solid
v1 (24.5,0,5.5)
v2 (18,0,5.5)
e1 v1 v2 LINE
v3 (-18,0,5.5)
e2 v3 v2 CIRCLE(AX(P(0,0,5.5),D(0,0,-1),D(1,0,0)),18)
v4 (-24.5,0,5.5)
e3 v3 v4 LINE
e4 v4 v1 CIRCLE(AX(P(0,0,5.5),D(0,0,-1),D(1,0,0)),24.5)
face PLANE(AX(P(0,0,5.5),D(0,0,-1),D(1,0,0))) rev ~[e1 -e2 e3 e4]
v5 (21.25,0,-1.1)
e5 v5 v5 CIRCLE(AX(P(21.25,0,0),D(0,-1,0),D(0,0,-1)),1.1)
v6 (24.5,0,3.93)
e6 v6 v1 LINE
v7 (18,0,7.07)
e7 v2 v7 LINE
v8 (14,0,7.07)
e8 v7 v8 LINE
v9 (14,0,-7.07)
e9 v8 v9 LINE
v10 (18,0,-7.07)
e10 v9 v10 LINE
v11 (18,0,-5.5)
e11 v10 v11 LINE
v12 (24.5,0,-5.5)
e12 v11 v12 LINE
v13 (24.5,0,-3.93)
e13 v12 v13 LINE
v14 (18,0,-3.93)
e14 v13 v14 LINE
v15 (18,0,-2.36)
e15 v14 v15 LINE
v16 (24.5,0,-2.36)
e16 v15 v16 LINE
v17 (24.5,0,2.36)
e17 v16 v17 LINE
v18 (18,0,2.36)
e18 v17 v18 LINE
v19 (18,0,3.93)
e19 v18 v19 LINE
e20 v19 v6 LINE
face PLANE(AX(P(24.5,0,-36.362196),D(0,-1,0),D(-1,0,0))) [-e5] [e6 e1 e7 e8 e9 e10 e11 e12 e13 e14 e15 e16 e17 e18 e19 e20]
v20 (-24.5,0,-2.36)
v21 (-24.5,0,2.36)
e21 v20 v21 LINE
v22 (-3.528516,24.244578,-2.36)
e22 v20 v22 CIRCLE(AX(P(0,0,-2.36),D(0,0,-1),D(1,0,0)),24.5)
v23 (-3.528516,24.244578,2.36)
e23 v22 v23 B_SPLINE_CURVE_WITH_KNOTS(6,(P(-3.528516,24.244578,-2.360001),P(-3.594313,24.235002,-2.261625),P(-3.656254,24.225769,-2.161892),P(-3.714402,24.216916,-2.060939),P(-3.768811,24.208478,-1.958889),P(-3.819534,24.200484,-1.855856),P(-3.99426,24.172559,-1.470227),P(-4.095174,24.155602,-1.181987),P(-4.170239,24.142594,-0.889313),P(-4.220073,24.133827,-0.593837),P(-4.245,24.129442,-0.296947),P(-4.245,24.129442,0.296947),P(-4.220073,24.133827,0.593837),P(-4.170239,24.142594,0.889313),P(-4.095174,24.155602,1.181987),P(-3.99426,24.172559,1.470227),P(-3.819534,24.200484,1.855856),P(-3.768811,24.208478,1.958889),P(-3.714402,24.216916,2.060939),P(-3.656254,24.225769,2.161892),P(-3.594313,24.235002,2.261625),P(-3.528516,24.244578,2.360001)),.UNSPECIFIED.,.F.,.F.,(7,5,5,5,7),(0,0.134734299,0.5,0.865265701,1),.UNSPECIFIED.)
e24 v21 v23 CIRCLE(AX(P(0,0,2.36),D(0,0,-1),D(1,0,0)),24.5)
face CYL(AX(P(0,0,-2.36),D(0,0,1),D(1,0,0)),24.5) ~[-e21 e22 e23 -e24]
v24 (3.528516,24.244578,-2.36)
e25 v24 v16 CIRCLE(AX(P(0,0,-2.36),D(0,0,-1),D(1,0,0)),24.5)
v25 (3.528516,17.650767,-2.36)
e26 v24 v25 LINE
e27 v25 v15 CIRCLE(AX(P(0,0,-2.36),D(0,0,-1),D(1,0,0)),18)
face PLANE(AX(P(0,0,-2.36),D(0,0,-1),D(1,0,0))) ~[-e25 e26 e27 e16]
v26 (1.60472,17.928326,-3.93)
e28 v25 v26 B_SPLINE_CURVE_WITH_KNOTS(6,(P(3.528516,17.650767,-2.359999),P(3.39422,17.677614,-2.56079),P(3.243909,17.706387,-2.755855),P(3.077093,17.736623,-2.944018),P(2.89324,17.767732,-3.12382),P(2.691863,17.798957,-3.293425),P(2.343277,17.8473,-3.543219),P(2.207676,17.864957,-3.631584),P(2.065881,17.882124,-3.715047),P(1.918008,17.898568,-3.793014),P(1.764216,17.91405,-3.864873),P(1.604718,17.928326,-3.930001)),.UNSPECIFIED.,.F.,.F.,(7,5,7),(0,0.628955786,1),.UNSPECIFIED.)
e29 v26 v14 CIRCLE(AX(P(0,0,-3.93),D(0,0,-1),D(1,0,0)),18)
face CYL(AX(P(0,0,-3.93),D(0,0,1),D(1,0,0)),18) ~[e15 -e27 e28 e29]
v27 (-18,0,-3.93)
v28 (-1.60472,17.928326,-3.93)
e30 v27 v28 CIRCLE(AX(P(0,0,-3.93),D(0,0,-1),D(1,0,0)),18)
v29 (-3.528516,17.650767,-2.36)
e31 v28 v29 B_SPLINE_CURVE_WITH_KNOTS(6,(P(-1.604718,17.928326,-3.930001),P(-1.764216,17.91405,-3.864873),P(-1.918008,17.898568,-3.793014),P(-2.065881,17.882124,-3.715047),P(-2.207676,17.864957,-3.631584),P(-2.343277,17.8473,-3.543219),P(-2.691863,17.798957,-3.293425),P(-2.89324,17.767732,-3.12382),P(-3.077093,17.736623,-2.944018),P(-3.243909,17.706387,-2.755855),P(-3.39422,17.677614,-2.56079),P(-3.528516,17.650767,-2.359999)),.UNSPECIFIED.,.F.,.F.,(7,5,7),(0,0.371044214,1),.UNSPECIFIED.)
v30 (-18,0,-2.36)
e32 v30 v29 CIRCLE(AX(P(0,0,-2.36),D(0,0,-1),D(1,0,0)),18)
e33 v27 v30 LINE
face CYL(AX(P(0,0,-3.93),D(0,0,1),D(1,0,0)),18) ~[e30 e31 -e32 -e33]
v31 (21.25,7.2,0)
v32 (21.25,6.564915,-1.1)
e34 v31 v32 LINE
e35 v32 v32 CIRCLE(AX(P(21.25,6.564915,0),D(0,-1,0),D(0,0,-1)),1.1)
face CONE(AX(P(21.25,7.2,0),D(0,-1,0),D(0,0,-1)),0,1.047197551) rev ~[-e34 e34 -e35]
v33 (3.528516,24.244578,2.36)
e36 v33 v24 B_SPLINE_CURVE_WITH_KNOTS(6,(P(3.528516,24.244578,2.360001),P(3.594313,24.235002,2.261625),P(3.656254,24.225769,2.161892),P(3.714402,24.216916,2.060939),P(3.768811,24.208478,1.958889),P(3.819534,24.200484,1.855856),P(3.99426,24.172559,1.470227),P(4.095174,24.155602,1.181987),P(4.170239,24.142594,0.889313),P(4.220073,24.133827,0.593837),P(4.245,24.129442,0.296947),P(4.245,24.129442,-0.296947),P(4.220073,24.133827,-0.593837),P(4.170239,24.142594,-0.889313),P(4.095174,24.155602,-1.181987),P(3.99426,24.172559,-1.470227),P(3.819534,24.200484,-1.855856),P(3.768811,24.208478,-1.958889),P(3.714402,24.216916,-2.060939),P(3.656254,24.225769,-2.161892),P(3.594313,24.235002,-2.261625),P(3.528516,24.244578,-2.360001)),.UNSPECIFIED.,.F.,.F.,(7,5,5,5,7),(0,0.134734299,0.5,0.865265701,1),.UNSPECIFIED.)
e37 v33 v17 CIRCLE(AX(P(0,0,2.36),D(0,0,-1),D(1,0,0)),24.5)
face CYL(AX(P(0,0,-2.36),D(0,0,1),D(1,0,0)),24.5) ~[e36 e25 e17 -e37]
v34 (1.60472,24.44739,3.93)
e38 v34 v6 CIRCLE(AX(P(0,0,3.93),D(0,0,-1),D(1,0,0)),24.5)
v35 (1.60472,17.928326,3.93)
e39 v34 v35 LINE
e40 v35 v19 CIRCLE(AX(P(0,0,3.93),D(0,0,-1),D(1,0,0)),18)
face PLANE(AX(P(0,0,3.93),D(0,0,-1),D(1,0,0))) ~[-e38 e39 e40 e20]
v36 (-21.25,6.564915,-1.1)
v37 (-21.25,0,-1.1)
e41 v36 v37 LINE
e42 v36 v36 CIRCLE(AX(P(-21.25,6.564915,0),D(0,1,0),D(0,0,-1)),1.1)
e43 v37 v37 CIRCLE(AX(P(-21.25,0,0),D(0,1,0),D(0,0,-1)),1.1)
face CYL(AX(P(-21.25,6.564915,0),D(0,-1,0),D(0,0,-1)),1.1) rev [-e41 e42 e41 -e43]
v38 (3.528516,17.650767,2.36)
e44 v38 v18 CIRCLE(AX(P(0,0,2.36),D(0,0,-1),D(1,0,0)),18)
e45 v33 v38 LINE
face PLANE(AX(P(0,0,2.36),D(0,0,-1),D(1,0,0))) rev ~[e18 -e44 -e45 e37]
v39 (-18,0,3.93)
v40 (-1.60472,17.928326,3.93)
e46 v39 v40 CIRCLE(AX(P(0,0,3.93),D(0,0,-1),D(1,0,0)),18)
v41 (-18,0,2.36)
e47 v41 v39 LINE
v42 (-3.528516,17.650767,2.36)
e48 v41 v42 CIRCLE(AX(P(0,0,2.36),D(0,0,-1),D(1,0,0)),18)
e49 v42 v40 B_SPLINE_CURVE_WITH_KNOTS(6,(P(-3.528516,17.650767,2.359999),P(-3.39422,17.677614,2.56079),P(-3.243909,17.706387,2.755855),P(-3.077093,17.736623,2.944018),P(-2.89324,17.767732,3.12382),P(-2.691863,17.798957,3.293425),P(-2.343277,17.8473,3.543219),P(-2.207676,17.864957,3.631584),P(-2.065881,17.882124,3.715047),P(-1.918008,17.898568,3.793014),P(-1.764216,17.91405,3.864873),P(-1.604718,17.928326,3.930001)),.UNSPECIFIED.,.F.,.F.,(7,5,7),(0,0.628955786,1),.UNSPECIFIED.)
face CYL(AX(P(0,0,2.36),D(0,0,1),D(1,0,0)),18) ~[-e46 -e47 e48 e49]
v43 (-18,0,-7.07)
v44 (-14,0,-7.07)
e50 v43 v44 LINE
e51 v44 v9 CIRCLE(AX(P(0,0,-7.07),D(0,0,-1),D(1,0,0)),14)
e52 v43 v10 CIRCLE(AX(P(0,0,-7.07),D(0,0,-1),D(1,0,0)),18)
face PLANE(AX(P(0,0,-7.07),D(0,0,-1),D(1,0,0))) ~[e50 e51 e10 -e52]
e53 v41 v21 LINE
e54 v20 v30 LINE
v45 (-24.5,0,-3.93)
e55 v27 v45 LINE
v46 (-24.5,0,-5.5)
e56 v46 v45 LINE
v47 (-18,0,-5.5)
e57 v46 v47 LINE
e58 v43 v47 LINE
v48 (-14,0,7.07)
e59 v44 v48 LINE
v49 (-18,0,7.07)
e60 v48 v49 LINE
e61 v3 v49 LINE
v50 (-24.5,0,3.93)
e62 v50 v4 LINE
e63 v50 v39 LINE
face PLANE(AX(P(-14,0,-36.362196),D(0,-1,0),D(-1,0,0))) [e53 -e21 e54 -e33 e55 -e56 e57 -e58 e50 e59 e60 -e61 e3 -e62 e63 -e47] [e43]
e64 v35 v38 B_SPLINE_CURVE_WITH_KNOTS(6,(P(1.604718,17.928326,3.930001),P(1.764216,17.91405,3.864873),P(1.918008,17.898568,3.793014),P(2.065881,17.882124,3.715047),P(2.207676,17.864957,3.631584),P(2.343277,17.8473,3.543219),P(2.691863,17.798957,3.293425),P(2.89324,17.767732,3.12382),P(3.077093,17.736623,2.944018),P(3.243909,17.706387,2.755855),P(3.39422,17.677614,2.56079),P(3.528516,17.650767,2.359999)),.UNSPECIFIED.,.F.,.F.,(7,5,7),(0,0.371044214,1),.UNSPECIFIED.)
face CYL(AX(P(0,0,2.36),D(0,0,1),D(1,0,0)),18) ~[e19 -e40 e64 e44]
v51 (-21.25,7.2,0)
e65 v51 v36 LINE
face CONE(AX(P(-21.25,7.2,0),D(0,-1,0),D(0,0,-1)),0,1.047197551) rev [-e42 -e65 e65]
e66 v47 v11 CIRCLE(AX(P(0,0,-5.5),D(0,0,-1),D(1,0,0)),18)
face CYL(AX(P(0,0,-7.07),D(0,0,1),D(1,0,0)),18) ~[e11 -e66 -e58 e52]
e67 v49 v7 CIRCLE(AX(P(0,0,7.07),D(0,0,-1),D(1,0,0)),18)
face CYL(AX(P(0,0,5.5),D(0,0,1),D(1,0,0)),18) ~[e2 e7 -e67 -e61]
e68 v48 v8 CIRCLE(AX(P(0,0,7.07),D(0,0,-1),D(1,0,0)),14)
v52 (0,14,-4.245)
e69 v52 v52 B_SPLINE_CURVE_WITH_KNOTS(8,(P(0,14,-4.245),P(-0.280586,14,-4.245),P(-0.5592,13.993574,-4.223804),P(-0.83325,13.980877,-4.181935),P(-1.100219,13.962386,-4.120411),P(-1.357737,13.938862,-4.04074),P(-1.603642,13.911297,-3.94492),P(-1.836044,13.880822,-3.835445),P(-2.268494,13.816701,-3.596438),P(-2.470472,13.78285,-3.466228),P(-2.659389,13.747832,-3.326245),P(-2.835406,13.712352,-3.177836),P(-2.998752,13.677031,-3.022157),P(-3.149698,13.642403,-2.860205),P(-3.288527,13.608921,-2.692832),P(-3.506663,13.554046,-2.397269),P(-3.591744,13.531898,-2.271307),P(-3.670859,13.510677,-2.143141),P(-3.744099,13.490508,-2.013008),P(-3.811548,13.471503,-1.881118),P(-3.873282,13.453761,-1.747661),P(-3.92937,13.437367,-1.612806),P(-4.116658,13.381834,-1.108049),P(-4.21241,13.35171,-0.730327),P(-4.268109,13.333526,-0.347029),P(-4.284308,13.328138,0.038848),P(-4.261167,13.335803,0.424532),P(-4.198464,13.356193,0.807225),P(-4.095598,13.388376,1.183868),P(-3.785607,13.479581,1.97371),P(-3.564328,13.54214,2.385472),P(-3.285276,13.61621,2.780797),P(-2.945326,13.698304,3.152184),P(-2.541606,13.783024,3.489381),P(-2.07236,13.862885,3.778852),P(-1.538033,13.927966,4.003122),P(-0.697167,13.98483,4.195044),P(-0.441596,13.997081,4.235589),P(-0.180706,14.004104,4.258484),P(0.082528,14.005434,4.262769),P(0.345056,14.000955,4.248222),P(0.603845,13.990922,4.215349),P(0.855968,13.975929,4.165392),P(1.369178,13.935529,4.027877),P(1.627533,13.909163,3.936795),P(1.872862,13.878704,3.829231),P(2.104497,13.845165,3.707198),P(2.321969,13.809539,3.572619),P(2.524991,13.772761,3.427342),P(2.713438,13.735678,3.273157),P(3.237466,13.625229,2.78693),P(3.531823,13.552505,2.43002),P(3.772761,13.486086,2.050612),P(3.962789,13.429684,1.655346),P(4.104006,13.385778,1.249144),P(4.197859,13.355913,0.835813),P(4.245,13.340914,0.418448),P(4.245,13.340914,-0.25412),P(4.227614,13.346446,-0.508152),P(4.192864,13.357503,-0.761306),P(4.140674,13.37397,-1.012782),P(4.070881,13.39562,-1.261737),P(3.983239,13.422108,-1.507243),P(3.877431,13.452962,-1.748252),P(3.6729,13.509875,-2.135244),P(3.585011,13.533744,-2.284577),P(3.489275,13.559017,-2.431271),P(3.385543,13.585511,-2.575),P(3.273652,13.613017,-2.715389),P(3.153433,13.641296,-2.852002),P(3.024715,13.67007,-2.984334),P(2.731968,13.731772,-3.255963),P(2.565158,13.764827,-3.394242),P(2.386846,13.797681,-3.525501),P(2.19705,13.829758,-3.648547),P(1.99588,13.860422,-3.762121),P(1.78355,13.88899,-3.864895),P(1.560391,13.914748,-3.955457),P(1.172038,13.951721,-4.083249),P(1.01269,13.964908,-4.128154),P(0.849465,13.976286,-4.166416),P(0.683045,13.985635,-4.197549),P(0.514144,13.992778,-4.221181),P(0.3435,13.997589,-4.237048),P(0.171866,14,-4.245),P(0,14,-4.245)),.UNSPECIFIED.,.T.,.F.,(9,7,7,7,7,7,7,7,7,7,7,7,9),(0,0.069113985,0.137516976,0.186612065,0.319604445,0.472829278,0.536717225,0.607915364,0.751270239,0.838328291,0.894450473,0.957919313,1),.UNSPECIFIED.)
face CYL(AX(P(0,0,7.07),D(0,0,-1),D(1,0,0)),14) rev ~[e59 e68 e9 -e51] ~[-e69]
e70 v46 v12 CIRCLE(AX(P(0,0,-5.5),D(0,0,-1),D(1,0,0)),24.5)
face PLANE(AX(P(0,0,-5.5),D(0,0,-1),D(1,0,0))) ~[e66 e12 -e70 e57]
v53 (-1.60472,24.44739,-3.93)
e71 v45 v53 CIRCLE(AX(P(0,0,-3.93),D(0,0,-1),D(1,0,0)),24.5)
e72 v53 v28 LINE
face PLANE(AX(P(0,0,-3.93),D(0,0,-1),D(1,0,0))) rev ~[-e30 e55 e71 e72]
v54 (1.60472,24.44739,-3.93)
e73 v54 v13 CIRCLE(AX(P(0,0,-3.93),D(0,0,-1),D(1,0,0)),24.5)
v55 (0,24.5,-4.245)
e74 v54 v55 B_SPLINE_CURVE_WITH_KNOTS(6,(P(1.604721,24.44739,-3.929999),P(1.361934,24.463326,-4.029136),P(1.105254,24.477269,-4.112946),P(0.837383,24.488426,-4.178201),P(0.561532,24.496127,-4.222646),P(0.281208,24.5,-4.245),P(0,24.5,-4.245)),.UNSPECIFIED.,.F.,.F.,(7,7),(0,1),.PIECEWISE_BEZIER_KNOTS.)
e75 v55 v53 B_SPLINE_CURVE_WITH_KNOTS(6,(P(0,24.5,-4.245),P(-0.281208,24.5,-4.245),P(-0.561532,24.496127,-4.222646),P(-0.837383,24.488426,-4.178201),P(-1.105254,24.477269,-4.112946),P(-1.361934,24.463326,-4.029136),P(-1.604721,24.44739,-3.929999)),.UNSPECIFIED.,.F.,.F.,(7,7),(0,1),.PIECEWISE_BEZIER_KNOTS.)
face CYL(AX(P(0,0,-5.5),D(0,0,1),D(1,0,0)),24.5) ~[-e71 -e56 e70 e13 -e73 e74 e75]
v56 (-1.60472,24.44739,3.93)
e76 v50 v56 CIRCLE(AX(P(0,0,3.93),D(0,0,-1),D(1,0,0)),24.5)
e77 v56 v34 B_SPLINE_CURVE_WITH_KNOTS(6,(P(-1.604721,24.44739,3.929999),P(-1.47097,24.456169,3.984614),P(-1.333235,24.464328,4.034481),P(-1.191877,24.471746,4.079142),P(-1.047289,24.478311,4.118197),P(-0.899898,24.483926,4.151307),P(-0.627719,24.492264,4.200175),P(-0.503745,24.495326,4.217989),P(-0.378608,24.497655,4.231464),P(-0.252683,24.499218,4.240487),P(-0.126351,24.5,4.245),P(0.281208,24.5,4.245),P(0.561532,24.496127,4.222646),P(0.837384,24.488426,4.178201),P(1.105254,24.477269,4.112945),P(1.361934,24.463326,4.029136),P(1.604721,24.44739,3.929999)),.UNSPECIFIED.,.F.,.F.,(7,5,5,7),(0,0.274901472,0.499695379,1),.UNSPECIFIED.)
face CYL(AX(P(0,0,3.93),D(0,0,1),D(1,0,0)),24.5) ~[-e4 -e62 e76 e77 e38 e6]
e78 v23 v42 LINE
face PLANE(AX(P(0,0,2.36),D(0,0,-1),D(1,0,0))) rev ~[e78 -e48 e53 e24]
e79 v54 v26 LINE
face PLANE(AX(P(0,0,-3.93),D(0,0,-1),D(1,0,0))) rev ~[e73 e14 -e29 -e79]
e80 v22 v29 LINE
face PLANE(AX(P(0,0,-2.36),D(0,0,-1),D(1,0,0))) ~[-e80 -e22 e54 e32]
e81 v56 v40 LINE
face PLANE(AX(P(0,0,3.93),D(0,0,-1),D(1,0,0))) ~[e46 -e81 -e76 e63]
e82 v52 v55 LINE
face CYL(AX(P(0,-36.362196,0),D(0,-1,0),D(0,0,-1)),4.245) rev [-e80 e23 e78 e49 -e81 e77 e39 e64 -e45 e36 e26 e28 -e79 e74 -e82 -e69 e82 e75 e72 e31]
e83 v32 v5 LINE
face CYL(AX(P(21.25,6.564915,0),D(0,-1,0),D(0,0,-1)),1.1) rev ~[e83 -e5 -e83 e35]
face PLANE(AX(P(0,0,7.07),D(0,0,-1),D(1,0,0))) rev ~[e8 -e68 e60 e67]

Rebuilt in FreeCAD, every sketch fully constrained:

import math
import FreeCAD as App
import Part
import Sketcher

V = App.Vector
Q = App.Units.Quantity


def add_polygon(sketch, points):
    """Adds a closed chain of lines whose ends are joined by coincident constraints."""
    first, n = sketch.GeometryCount, len(points)
    for a, b in zip(points, points[1:] + points[:1]):
        sketch.addGeometry(Part.LineSegment(App.Vector(*a, 0), App.Vector(*b, 0)), False)
    for i in range(n):
        sketch.addConstraint(Sketcher.Constraint("Coincident", first + i, 2, first + (i + 1) % n, 1))

doc = App.newDocument("Part")
body = doc.addObject("PartDesign::Body", "Body")

# Sketch on XZ plane
sketch1 = doc.addObject("Sketcher::SketchObject", "Sketch")
body.addObject(sketch1)
sketch1.AttachmentSupport = (doc.XZ_Plane, [""])
sketch1.MapMode = "FlatFace"
add_polygon(sketch1, [(-14, 7.1), (-14, -7.1), (-18, -7.1), (-18, -5.5), (-24.5, -5.5), (-24.5, -3.9), (-18, -3.9), (-18, -2.4), (-24.5, -2.4), (-24.5, 2.4), (-18, 2.4), (-18, 3.9), (-24.5, 3.9), (-24.5, 5.5), (-18, 5.5), (-18, 7.1)])  # lines 0-15
sketch1.addConstraint([
    Sketcher.Constraint("Vertical", 0),
    Sketcher.Constraint("Horizontal", 1),
    Sketcher.Constraint("Vertical", 2),
    Sketcher.Constraint("Horizontal", 3),
    Sketcher.Constraint("Vertical", 4),
    Sketcher.Constraint("Horizontal", 5),
    Sketcher.Constraint("Vertical", 6),
    Sketcher.Constraint("Horizontal", 7),
    Sketcher.Constraint("Vertical", 8),
    Sketcher.Constraint("Horizontal", 9),
    Sketcher.Constraint("Vertical", 10),
    Sketcher.Constraint("Horizontal", 11),
    Sketcher.Constraint("Vertical", 12),
    Sketcher.Constraint("Horizontal", 13),
    Sketcher.Constraint("Vertical", 14),
    Sketcher.Constraint("Horizontal", 15),
    Sketcher.Constraint("Symmetric", 6, 2, 9, 2, -1),
    Sketcher.Constraint("Symmetric", 4, 2, 11, 2, -1),
    Sketcher.Constraint("Symmetric", 2, 2, 13, 2, -1),
    Sketcher.Constraint("Vertical", 2, 2, 5, 2),
    Sketcher.Constraint("Vertical", 4, 2, 7, 2),
    Sketcher.Constraint("Equal", 2, 4),
    Sketcher.Constraint("Equal", 4, 6),
    Sketcher.Constraint("Equal", 12, 14),
    Sketcher.Constraint("DistanceX", 1, 2, 1, 1, Q("4 mm")),
    Sketcher.Constraint("DistanceX", 3, 2, 3, 1, Q("6.5 mm")),
    Sketcher.Constraint("DistanceX", 0, 2, -1, 1, Q("14 mm")),
    Sketcher.Constraint("DistanceY", 0, 2, 0, 1, Q("14.14 mm")),
    Sketcher.Constraint("DistanceY", 2, 1, 2, 2, Q("1.57 mm")),
])
revolution = doc.addObject("PartDesign::Revolution", "Revolution")
body.addObject(revolution)
revolution.Profile = sketch1
revolution.ReferenceAxis = (sketch1, ["V_Axis"])
revolution.Angle = 360

# Sketch on XY plane
sketch2 = doc.addObject("Sketcher::SketchObject", "Sketch001")
body.addObject(sketch2)
sketch2.AttachmentSupport = (doc.XY_Plane, [""])
sketch2.MapMode = "FlatFace"
sketch2.addGeometry([
    Part.LineSegment(V(-14, 0, 0), V(-24, 0, 0)),
    Part.ArcOfCircle(Part.Circle(V(0, 0, 0), V(0, 0, 1), 24), math.radians(180), math.radians(360)),
    Part.LineSegment(V(24, 0, 0), V(14, 0, 0)),
    Part.ArcOfCircle(Part.Circle(V(0, 0, 0), V(0, 0, 1), 14), math.radians(180), math.radians(360)),
], False)
sketch2.addConstraint([
    Sketcher.Constraint("Coincident", 0, 2, 1, 1),
    Sketcher.Constraint("Coincident", 1, 2, 2, 1),
    Sketcher.Constraint("Coincident", 2, 2, 3, 2),
    Sketcher.Constraint("Coincident", 3, 1, 0, 1),
    Sketcher.Constraint("Horizontal", 0),
    Sketcher.Constraint("Horizontal", 2),
    Sketcher.Constraint("Coincident", 1, 3, -1, 1),
    Sketcher.Constraint("Coincident", 3, 3, -1, 1),
    Sketcher.Constraint("PointOnObject", 0, 2, -1),
    Sketcher.Constraint("PointOnObject", 1, 2, -1),
    Sketcher.Constraint("Radius", 3, Q("14 mm")),
    Sketcher.Constraint("Radius", 1, Q("24.5 mm")),
])
pocket1 = doc.addObject("PartDesign::Pocket", "Pocket")
body.addObject(pocket1)
pocket1.Profile = sketch2
pocket1.Type = "ThroughAll"
pocket1.Midplane = True

# Sketch on XZ plane
sketch3 = doc.addObject("Sketcher::SketchObject", "Sketch002")
body.addObject(sketch3)
sketch3.AttachmentSupport = (doc.XZ_Plane, [""])
sketch3.MapMode = "FlatFace"
sketch3.addGeometry(Part.Circle(V(0, 0, 0), V(0, 0, 1), 4.2), False)
sketch3.addConstraint([
    Sketcher.Constraint("Coincident", 0, 3, -1, 1),
    Sketcher.Constraint("Diameter", 0, Q("8.49 mm")),
])
pocket2 = doc.addObject("PartDesign::Pocket", "Pocket001")
body.addObject(pocket2)
pocket2.Profile = sketch3
pocket2.Type = "ThroughAll"
pocket2.Midplane = True

# Sketch on YZ plane
sketch4 = doc.addObject("Sketcher::SketchObject", "Sketch003")
body.addObject(sketch4)
sketch4.AttachmentSupport = (doc.YZ_Plane, [""])
sketch4.MapMode = "FlatFace"
sketch4.AttachmentOffset = App.Placement(V(0, 0, -21.25), App.Rotation())
add_polygon(sketch4, [(7.2, 0), (0, 0), (0, -1.1), (6.6, -1.1)])  # lines 0-3
sketch4.addConstraint([
    Sketcher.Constraint("Horizontal", 0),
    Sketcher.Constraint("Vertical", 1),
    Sketcher.Constraint("Horizontal", 2),
    Sketcher.Constraint("Coincident", 0, 2, -1, 1),
    Sketcher.Constraint("Angle", 3, Q("60 deg")),
    Sketcher.Constraint("DistanceX", 0, 2, 0, 1, Q("7.2 mm")),
    Sketcher.Constraint("DistanceY", 1, 2, 1, 1, Q("1.1 mm")),
])
groove = doc.addObject("PartDesign::Groove", "Groove")
body.addObject(groove)
groove.Profile = sketch4
groove.ReferenceAxis = (sketch4, ["H_Axis"])
groove.Angle = 360
doc.recompute()

mirrored = doc.addObject("PartDesign::Mirrored", "Mirrored")
body.addObject(mirrored)
mirrored.Originals = [groove]
mirrored.MirrorPlane = (doc.YZ_Plane, [""])
body.Tip = mirrored

doc.recompute()
